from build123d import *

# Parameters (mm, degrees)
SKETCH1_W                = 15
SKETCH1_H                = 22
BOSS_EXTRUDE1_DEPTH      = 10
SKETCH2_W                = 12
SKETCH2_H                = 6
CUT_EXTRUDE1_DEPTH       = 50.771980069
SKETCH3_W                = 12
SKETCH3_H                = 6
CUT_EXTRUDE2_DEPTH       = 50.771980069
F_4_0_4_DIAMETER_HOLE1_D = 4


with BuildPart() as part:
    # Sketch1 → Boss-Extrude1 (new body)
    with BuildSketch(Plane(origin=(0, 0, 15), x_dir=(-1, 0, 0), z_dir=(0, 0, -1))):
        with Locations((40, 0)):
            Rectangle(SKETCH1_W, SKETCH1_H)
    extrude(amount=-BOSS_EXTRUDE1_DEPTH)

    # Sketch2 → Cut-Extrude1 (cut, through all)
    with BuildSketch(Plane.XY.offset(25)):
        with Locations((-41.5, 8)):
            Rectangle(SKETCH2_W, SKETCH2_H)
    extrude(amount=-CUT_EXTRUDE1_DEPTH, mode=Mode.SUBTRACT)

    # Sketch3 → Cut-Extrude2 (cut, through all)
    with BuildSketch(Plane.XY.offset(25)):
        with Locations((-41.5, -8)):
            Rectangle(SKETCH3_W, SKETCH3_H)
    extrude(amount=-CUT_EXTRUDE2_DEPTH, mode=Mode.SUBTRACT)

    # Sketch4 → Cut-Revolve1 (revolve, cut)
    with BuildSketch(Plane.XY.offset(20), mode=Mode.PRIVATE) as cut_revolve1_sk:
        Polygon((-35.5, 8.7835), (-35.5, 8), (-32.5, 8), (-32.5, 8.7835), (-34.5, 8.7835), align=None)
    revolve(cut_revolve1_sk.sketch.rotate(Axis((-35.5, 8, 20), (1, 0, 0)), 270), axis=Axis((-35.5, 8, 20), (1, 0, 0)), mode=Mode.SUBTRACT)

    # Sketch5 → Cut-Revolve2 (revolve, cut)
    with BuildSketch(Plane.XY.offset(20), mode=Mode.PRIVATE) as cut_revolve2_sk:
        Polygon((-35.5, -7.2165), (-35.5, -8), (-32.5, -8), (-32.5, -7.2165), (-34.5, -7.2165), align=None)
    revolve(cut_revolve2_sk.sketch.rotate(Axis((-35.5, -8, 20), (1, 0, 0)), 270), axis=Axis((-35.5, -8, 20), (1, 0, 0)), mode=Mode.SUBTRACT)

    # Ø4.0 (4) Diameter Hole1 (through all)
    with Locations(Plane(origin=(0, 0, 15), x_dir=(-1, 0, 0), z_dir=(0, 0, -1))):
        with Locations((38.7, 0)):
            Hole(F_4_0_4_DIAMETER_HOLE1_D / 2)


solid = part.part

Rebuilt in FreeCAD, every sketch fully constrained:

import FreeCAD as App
import Part
import Sketcher
from FreeCAD import Vector
Q = App.Units.Quantity

doc = App.newDocument("Part")
params = doc.addObject("Spreadsheet::Sheet", "Params")
for row, (alias, value) in enumerate([
    ("sketch1_width", "15 mm"),
    ("sketch1_height", "22 mm"),
    ("pad1_length", "10 mm"),
    ("sketch2_width", "12 mm"),
    ("sketch2_height", "6 mm"),
    ("sketch3_width", "12 mm"),
    ("sketch3_height", "6 mm"),
    ("sketch4_width", "3 mm"),
    ("groove_angle", "360 deg"),
    ("sketch5_width", "3 mm"),
    ("groove2_angle", "360 deg"),
    ("sketch6_diameter", "4 mm"),
    ("hole_diameter", "4 mm"),
], start=1):
    params.set(f"A{row}", alias)
    params.set(f"B{row}", "=" + value)
    params.setAlias(f"B{row}", alias)

body = doc.addObject("PartDesign::Body", "Body")

# Sketch on XY plane
sketch1 = doc.addObject("Sketcher::SketchObject", "Sketch")
body.addObject(sketch1)
sketch1.AttachmentSupport = (doc.XY_Plane, [""])
sketch1.MapMode = "FlatFace"
sketch1.AttachmentOffset = App.Placement(Vector(0, 0, 15), App.Rotation())
sketch1.addGeometry(Part.LineSegment(Vector(-32, 11, 0), Vector(-32, -11, 0)), False)
sketch1.addGeometry(Part.LineSegment(Vector(-32, -11, 0), Vector(-48, -11, 0)), False)
sketch1.addGeometry(Part.LineSegment(Vector(-48, -11, 0), Vector(-48, 11, 0)), False)
sketch1.addGeometry(Part.LineSegment(Vector(-48, 11, 0), Vector(-32, 11, 0)), False)
sketch1.addConstraint(Sketcher.Constraint("Coincident", 0, 2, 1, 1))
sketch1.addConstraint(Sketcher.Constraint("Coincident", 1, 2, 2, 1))
sketch1.addConstraint(Sketcher.Constraint("Coincident", 2, 2, 3, 1))
sketch1.addConstraint(Sketcher.Constraint("Coincident", 3, 2, 0, 1))
sketch1.addConstraint(Sketcher.Constraint("Vertical", 0))
sketch1.addConstraint(Sketcher.Constraint("Horizontal", 1))
sketch1.addConstraint(Sketcher.Constraint("Vertical", 2))
sketch1.addConstraint(Sketcher.Constraint("Horizontal", 3))
sketch1.addConstraint(Sketcher.Constraint("DistanceX", 1, 2, 1, 1, Q("15 mm")))
sketch1.addConstraint(Sketcher.Constraint("DistanceY", 0, 2, 0, 1, Q("22 mm")))
sketch1.addConstraint(Sketcher.Constraint("DistanceY", 0, 2, -1, 1, Q("11 mm")))
sketch1.addConstraint(Sketcher.Constraint("DistanceX", 0, 2, -1, 1, Q("32.5 mm")))
sketch1.setExpression("Constraints[8]", "Params.sketch1_width")
sketch1.setExpression("Constraints[9]", "Params.sketch1_height")
pad1 = doc.addObject("PartDesign::Pad", "Pad")
body.addObject(pad1)
pad1.Profile = sketch1
pad1.setExpression("Length", "Params.pad1_length")

# Sketch on XY plane
sketch2 = doc.addObject("Sketcher::SketchObject", "Sketch001")
body.addObject(sketch2)
sketch2.AttachmentSupport = (doc.XY_Plane, [""])
sketch2.MapMode = "FlatFace"
sketch2.AttachmentOffset = App.Placement(Vector(0, 0, 25), App.Rotation())
sketch2.addGeometry(Part.LineSegment(Vector(-48, 11, 0), Vector(-48, 5, 0)), False)
sketch2.addGeometry(Part.LineSegment(Vector(-48, 5, 0), Vector(-36, 5, 0)), False)
sketch2.addGeometry(Part.LineSegment(Vector(-36, 5, 0), Vector(-36, 11, 0)), False)
sketch2.addGeometry(Part.LineSegment(Vector(-36, 11, 0), Vector(-48, 11, 0)), False)
sketch2.addConstraint(Sketcher.Constraint("Coincident", 0, 2, 1, 1))
sketch2.addConstraint(Sketcher.Constraint("Coincident", 1, 2, 2, 1))
sketch2.addConstraint(Sketcher.Constraint("Coincident", 2, 2, 3, 1))
sketch2.addConstraint(Sketcher.Constraint("Coincident", 3, 2, 0, 1))
sketch2.addConstraint(Sketcher.Constraint("Vertical", 0))
sketch2.addConstraint(Sketcher.Constraint("Horizontal", 1))
sketch2.addConstraint(Sketcher.Constraint("Vertical", 2))
sketch2.addConstraint(Sketcher.Constraint("Horizontal", 3))
sketch2.addConstraint(Sketcher.Constraint("DistanceX", 1, 1, 1, 2, Q("12 mm")))
sketch2.addConstraint(Sketcher.Constraint("DistanceY", 0, 2, 0, 1, Q("6 mm")))
sketch2.addConstraint(Sketcher.Constraint("DistanceY", -1, 1, 0, 2, Q("5 mm")))
sketch2.addConstraint(Sketcher.Constraint("DistanceX", 0, 2, -1, 1, Q("47.5 mm")))
sketch2.setExpression("Constraints[8]", "Params.sketch2_width")
sketch2.setExpression("Constraints[9]", "Params.sketch2_height")
pocket1 = doc.addObject("PartDesign::Pocket", "Pocket")
body.addObject(pocket1)
pocket1.Profile = sketch2
pocket1.Type = "ThroughAll"

# Sketch on XY plane
sketch3 = doc.addObject("Sketcher::SketchObject", "Sketch002")
body.addObject(sketch3)
sketch3.AttachmentSupport = (doc.XY_Plane, [""])
sketch3.MapMode = "FlatFace"
sketch3.AttachmentOffset = App.Placement(Vector(0, 0, 25), App.Rotation())
sketch3.addGeometry(Part.LineSegment(Vector(-48, -5, 0), Vector(-48, -11, 0)), False)
sketch3.addGeometry(Part.LineSegment(Vector(-48, -11, 0), Vector(-36, -11, 0)), False)
sketch3.addGeometry(Part.LineSegment(Vector(-36, -11, 0), Vector(-36, -5, 0)), False)
sketch3.addGeometry(Part.LineSegment(Vector(-36, -5, 0), Vector(-48, -5, 0)), False)
sketch3.addConstraint(Sketcher.Constraint("Coincident", 0, 2, 1, 1))
sketch3.addConstraint(Sketcher.Constraint("Coincident", 1, 2, 2, 1))
sketch3.addConstraint(Sketcher.Constraint("Coincident", 2, 2, 3, 1))
sketch3.addConstraint(Sketcher.Constraint("Coincident", 3, 2, 0, 1))
sketch3.addConstraint(Sketcher.Constraint("Vertical", 0))
sketch3.addConstraint(Sketcher.Constraint("Horizontal", 1))
sketch3.addConstraint(Sketcher.Constraint("Vertical", 2))
sketch3.addConstraint(Sketcher.Constraint("Horizontal", 3))
sketch3.addConstraint(Sketcher.Constraint("DistanceX", 1, 1, 1, 2, Q("12 mm")))
sketch3.addConstraint(Sketcher.Constraint("DistanceY", 0, 2, 0, 1, Q("6 mm")))
sketch3.addConstraint(Sketcher.Constraint("DistanceY", 0, 2, -1, 1, Q("11 mm")))
sketch3.addConstraint(Sketcher.Constraint("DistanceX", 0, 2, -1, 1, Q("47.5 mm")))
sketch3.setExpression("Constraints[8]", "Params.sketch3_width")
sketch3.setExpression("Constraints[9]", "Params.sketch3_height")
pocket2 = doc.addObject("PartDesign::Pocket", "Pocket001")
body.addObject(pocket2)
pocket2.Profile = sketch3
pocket2.Type = "ThroughAll"

# Sketch on XY plane
sketch4 = doc.addObject("Sketcher::SketchObject", "Sketch003")
body.addObject(sketch4)
sketch4.AttachmentSupport = (doc.XY_Plane, [""])
sketch4.MapMode = "FlatFace"
sketch4.AttachmentOffset = App.Placement(Vector(0, 0, 20), App.Rotation())
sketch4.addGeometry(Part.LineSegment(Vector(-35.5, 8.8, 0), Vector(-35.5, 8, 0)), False)
sketch4.addGeometry(Part.LineSegment(Vector(-35.5, 8, 0), Vector(-32.5, 8, 0)), False)
sketch4.addGeometry(Part.LineSegment(Vector(-32.5, 8, 0), Vector(-32.5, 8.8, 0)), False)
sketch4.addGeometry(Part.LineSegment(Vector(-32.5, 8.8, 0), Vector(-35.5, 8.8, 0)), False)
sketch4.addGeometry(Part.LineSegment(Vector(-35.5, 8, 0), Vector(-32.5, 8, 0)), True)  # axis
sketch4.addConstraint(Sketcher.Constraint("Coincident", 0, 2, 1, 1))
sketch4.addConstraint(Sketcher.Constraint("Coincident", 1, 2, 2, 1))
sketch4.addConstraint(Sketcher.Constraint("Coincident", 2, 2, 3, 1))
sketch4.addConstraint(Sketcher.Constraint("Coincident", 3, 2, 0, 1))
sketch4.addConstraint(Sketcher.Constraint("Vertical", 0))
sketch4.addConstraint(Sketcher.Constraint("Horizontal", 1))
sketch4.addConstraint(Sketcher.Constraint("Vertical", 2))
sketch4.addConstraint(Sketcher.Constraint("Horizontal", 3))
sketch4.addConstraint(Sketcher.Constraint("Horizontal", 4))
sketch4.addConstraint(Sketcher.Constraint("Coincident", 4, 1, 0, 2))
sketch4.addConstraint(Sketcher.Constraint("Vertical", 2, 2, 4, 2))
sketch4.addConstraint(Sketcher.Constraint("DistanceX", 1, 1, 1, 2, Q("3 mm")))
sketch4.addConstraint(Sketcher.Constraint("DistanceY", -1, 1, 0, 2, Q("8 mm")))
sketch4.addConstraint(Sketcher.Constraint("DistanceX", 0, 2, -1, 1, Q("35.5 mm")))
sketch4.addConstraint(Sketcher.Constraint("DistanceY", 0, 2, 0, 1, Q("0.7835 mm")))
sketch4.setExpression("Constraints[11]", "Params.sketch4_width")
groove = doc.addObject("PartDesign::Groove", "Groove")
body.addObject(groove)
groove.Profile = sketch4
groove.ReferenceAxis = (sketch4, ["Axis0"])
groove.setExpression("Angle", "Params.groove_angle")

# Sketch on XY plane
sketch5 = doc.addObject("Sketcher::SketchObject", "Sketch004")
body.addObject(sketch5)
sketch5.AttachmentSupport = (doc.XY_Plane, [""])
sketch5.MapMode = "FlatFace"
sketch5.AttachmentOffset = App.Placement(Vector(0, 0, 20), App.Rotation())
sketch5.addGeometry(Part.LineSegment(Vector(-35.5, -7.2, 0), Vector(-35.5, -8, 0)), False)
sketch5.addGeometry(Part.LineSegment(Vector(-35.5, -8, 0), Vector(-32.5, -8, 0)), False)
sketch5.addGeometry(Part.LineSegment(Vector(-32.5, -8, 0), Vector(-32.5, -7.2, 0)), False)
sketch5.addGeometry(Part.LineSegment(Vector(-32.5, -7.2, 0), Vector(-35.5, -7.2, 0)), False)
sketch5.addGeometry(Part.LineSegment(Vector(-35.5, -8, 0), Vector(-32.5, -8, 0)), True)  # axis
sketch5.addConstraint(Sketcher.Constraint("Coincident", 0, 2, 1, 1))
sketch5.addConstraint(Sketcher.Constraint("Coincident", 1, 2, 2, 1))
sketch5.addConstraint(Sketcher.Constraint("Coincident", 2, 2, 3, 1))
sketch5.addConstraint(Sketcher.Constraint("Coincident", 3, 2, 0, 1))
sketch5.addConstraint(Sketcher.Constraint("Vertical", 0))
sketch5.addConstraint(Sketcher.Constraint("Horizontal", 1))
sketch5.addConstraint(Sketcher.Constraint("Vertical", 2))
sketch5.addConstraint(Sketcher.Constraint("Horizontal", 3))
sketch5.addConstraint(Sketcher.Constraint("Horizontal", 4))
sketch5.addConstraint(Sketcher.Constraint("Coincident", 4, 1, 0, 2))
sketch5.addConstraint(Sketcher.Constraint("Vertical", 2, 2, 4, 2))
sketch5.addConstraint(Sketcher.Constraint("DistanceX", 1, 1, 1, 2, Q("3 mm")))
sketch5.addConstraint(Sketcher.Constraint("DistanceY", 0, 2, -1, 1, Q("8 mm")))
sketch5.addConstraint(Sketcher.Constraint("DistanceX", 0, 2, -1, 1, Q("35.5 mm")))
sketch5.addConstraint(Sketcher.Constraint("DistanceY", 0, 2, 0, 1, Q("0.7835 mm")))
sketch5.setExpression("Constraints[11]", "Params.sketch5_width")
groove2 = doc.addObject("PartDesign::Groove", "Groove001")
body.addObject(groove2)
groove2.Profile = sketch5
groove2.ReferenceAxis = (sketch5, ["Axis0"])
groove2.setExpression("Angle", "Params.groove2_angle")

# Sketch on XY plane
sketch6 = doc.addObject("Sketcher::SketchObject", "Sketch005")
body.addObject(sketch6)
sketch6.AttachmentSupport = (doc.XY_Plane, [""])
sketch6.MapMode = "FlatFace"
sketch6.AttachmentOffset = App.Placement(Vector(0, 0, 15), App.Rotation())
sketch6.addGeometry(Part.Circle(Vector(-38.7, 0, 0), Vector(0, 0, 1), 2), False)
sketch6.addConstraint(Sketcher.Constraint("PointOnObject", 0, 3, -1))
sketch6.addConstraint(Sketcher.Constraint("Diameter", 0, Q("4 mm")))
sketch6.addConstraint(Sketcher.Constraint("DistanceX", 0, 3, -1, 1, Q("38.7 mm")))
sketch6.setExpression("Constraints[1]", "Params.sketch6_diameter")
doc.recompute()
hole = doc.addObject("PartDesign::Hole", "Hole")
body.addObject(hole)
hole.Profile = sketch6
hole.ThreadType = "None"
hole.setExpression("Diameter", "Params.hole_diameter")
hole.DepthType = "ThroughAll"
hole.Reversed = True

doc.recompute()
